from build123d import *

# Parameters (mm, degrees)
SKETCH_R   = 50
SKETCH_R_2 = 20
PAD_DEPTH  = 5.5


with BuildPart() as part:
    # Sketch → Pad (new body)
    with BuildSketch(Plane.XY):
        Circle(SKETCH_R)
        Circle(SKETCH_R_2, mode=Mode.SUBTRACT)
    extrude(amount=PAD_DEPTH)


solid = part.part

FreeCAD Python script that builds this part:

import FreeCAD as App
import Part
import Sketcher
Q = App.Units.Quantity

doc = App.newDocument("Part")
body = doc.addObject("PartDesign::Body", "Body")

sketch1 = body.newObject("Sketcher::SketchObject", "Sketch")
sketch1.AttachmentSupport = (doc.getObject("XY_Plane"), [""])
sketch1.MapMode = "FlatFace"
sketch1.addGeometry(Part.Circle(App.Vector(0, 0, 0), App.Vector(0, 0, 1), 50), False)
sketch1.addGeometry(Part.Circle(App.Vector(0, 0, 0), App.Vector(0, 0, 1), 20), False)
sketch1.addConstraint(Sketcher.Constraint("Coincident", 0, 3, -1, 1))
sketch1.addConstraint(Sketcher.Constraint("Coincident", 1, 3, -1, 1))
sketch1.addConstraint(Sketcher.Constraint("Diameter", 0, Q("100 mm")))
sketch1.addConstraint(Sketcher.Constraint("Diameter", 1, Q("40 mm")))
pad1 = body.newObject("PartDesign::Pad", "Pad")
pad1.Profile = sketch1
pad1.Length = 5.5

doc.recompute()
